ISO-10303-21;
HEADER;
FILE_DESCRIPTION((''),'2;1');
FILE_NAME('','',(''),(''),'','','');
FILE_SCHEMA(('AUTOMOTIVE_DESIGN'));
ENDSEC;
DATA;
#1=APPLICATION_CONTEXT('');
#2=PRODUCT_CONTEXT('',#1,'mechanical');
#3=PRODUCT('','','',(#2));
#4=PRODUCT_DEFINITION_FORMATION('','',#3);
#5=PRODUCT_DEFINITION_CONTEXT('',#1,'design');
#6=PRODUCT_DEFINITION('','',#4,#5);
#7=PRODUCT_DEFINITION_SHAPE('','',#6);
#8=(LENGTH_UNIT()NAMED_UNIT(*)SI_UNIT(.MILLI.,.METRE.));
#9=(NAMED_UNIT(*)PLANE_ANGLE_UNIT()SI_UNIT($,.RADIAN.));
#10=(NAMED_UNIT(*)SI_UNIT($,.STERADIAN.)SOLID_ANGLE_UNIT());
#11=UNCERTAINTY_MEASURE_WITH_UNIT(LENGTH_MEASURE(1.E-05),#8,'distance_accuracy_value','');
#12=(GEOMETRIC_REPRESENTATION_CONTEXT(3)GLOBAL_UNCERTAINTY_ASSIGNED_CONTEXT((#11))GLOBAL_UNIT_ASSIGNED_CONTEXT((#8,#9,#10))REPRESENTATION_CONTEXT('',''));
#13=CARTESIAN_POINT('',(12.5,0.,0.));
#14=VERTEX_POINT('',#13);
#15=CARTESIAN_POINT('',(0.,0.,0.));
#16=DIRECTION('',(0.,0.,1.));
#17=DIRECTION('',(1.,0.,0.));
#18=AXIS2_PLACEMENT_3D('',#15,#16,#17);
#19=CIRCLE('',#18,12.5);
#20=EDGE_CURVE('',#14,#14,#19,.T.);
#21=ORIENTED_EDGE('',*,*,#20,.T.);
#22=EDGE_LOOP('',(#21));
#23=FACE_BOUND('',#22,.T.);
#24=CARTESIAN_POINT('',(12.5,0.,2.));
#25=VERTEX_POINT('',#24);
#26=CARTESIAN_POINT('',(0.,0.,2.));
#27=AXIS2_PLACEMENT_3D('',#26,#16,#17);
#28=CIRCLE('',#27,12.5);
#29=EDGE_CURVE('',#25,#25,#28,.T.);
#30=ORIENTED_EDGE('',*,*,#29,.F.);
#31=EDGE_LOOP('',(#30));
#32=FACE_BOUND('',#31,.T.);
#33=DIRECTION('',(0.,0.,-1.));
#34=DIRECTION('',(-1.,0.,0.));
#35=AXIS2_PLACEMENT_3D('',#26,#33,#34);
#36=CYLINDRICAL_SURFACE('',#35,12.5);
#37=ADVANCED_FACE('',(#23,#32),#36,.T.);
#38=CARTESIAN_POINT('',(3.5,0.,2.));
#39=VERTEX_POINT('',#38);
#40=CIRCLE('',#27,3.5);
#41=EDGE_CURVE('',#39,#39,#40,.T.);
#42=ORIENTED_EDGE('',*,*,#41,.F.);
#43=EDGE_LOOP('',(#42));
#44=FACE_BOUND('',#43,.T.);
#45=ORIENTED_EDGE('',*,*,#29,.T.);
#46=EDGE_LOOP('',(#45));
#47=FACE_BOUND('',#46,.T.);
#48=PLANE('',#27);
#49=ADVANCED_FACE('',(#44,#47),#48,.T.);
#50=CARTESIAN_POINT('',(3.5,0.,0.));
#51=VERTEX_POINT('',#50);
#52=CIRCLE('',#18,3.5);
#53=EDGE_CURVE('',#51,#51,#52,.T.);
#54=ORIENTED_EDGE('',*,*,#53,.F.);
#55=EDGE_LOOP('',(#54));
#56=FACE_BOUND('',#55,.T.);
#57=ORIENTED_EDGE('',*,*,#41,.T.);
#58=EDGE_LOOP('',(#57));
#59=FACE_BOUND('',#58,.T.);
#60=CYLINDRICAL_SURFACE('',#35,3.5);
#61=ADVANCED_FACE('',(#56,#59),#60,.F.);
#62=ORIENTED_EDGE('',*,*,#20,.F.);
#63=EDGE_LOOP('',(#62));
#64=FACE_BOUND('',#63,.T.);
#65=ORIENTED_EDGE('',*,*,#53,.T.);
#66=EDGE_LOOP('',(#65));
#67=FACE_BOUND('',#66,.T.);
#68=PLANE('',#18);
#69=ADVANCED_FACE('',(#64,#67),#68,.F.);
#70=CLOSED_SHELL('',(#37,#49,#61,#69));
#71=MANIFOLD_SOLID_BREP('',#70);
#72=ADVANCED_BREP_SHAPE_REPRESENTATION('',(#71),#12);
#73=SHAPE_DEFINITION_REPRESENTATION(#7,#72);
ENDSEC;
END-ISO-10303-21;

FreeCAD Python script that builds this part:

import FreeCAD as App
import Part
import Sketcher

doc = App.newDocument("Part")
params = doc.addObject("Spreadsheet::Sheet", "Params")
for row, (alias, value) in enumerate([
    ("sketch1_diameter", "25 mm"),
    ("sketch1_diameter2", "7 mm"),
    ("pad1_length", "2 mm"),
], start=1):
    params.set(f"A{row}", alias)
    params.set(f"B{row}", "=" + value)
    params.setAlias(f"B{row}", alias)

body = doc.addObject("PartDesign::Body", "Body")

sketch1 = doc.addObject("Sketcher::SketchObject", "Sketch")
body.addObject(sketch1)
sketch1.AttachmentSupport = (doc.XY_Plane, [""])
sketch1.MapMode = "FlatFace"
sketch1.addGeometry(Part.Circle(App.Vector(0, 0, 0), App.Vector(0, 0, 1), 12.5), False)
sketch1.addGeometry(Part.Circle(App.Vector(0, 0, 0), App.Vector(0, 0, 1), 3.5), False)
sketch1.addConstraint(Sketcher.Constraint("Coincident", 0, 3, -1, 1))
sketch1.addConstraint(Sketcher.Constraint("Coincident", 1, 3, -1, 1))
sketch1.addConstraint(Sketcher.Constraint("Diameter", 0, 25.0))
sketch1.addConstraint(Sketcher.Constraint("Diameter", 1, 7.0))
sketch1.setExpression("Constraints[2]", "Params.sketch1_diameter")
sketch1.setExpression("Constraints[3]", "Params.sketch1_diameter2")
pad1 = doc.addObject("PartDesign::Pad", "Pad")
body.addObject(pad1)
pad1.Profile = sketch1
pad1.setExpression("Length", "Params.pad1_length")

doc.recompute()
